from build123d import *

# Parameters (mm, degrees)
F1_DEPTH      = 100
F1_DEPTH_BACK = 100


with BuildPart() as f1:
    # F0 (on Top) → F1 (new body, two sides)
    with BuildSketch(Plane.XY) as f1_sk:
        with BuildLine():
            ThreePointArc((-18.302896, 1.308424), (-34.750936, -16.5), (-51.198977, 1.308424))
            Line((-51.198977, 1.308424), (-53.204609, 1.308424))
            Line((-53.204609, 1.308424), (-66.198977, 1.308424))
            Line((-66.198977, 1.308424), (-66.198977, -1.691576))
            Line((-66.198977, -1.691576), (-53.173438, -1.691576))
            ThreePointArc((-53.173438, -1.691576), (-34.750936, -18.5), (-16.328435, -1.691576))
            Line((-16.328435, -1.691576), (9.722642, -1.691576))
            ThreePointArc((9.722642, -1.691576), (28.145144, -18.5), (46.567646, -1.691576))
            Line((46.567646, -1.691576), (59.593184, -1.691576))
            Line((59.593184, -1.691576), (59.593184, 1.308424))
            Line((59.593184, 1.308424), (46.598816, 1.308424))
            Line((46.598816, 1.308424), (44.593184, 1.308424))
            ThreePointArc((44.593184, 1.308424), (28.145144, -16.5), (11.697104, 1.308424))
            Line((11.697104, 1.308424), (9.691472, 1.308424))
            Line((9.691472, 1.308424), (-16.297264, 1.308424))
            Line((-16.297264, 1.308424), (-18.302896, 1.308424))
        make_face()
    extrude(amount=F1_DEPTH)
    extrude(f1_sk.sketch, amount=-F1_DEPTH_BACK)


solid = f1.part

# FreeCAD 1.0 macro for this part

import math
import FreeCAD as App
import Part
import Sketcher

V = App.Vector

doc = App.newDocument("Part")
body = doc.addObject("PartDesign::Body", "Body")

# Sketch on XY plane
sketch1 = body.newObject("Sketcher::SketchObject", "Sketch")
sketch1.AttachmentSupport = (doc.getObject("XY_Plane"), [""])
sketch1.MapMode = "FlatFace"
sketch1.addGeometry([
    Part.ArcOfCircle(Part.Circle(V(-34.8, 0, 0), V(0, 0, 1), 16.5), math.radians(175), math.radians(365)),  # 0
    Part.LineSegment(V(-51.2, 1.3, 0), V(-66.2, 1.3, 0)),  # 1
    Part.LineSegment(V(-66.2, 1.3, 0), V(-66.2, -1.7, 0)),  # 2
    Part.LineSegment(V(-66.2, -1.7, 0), V(-53.2, -1.7, 0)),  # 3
    Part.ArcOfCircle(Part.Circle(V(-34.8, 0, 0), V(0, 0, 1), 18.5), math.radians(-175), math.radians(-5)),  # 4
    Part.LineSegment(V(-16.3, -1.7, 0), V(9.7, -1.7, 0)),  # 5
    Part.ArcOfCircle(Part.Circle(V(28.1, 0, 0), V(0, 0, 1), 18.5), math.radians(-175), math.radians(-5)),  # 6
    Part.LineSegment(V(46.6, -1.7, 0), V(59.6, -1.7, 0)),  # 7
    Part.LineSegment(V(59.6, -1.7, 0), V(59.6, 1.3, 0)),  # 8
    Part.LineSegment(V(59.6, 1.3, 0), V(44.6, 1.3, 0)),  # 9
    Part.ArcOfCircle(Part.Circle(V(28.1, 0, 0), V(0, 0, 1), 16.5), math.radians(175), math.radians(365)),  # 10
    Part.LineSegment(V(11.7, 1.3, 0), V(-18.3, 1.3, 0)),  # 11
], False)
sketch1.addConstraint([
    Sketcher.Constraint("Coincident", 0, 1, 1, 1),
    Sketcher.Constraint("Coincident", 1, 2, 2, 1),
    Sketcher.Constraint("Coincident", 2, 2, 3, 1),
    Sketcher.Constraint("Coincident", 3, 2, 4, 1),
    Sketcher.Constraint("Coincident", 4, 2, 5, 1),
    Sketcher.Constraint("Coincident", 5, 2, 6, 1),
    Sketcher.Constraint("Coincident", 6, 2, 7, 1),
    Sketcher.Constraint("Coincident", 7, 2, 8, 1),
    Sketcher.Constraint("Coincident", 8, 2, 9, 1),
    Sketcher.Constraint("Coincident", 9, 2, 10, 2),
    Sketcher.Constraint("Coincident", 10, 1, 11, 1),
    Sketcher.Constraint("Coincident", 11, 2, 0, 2),
    Sketcher.Constraint("Horizontal", 1),
    Sketcher.Constraint("Vertical", 2),
    Sketcher.Constraint("Horizontal", 3),
    Sketcher.Constraint("Horizontal", 5),
    Sketcher.Constraint("Horizontal", 7),
    Sketcher.Constraint("Vertical", 8),
    Sketcher.Constraint("Horizontal", 9),
    Sketcher.Constraint("Horizontal", 11),
    Sketcher.Constraint("Coincident", 4, 3, 0, 3),
    Sketcher.Constraint("Coincident", 10, 3, 6, 3),
    Sketcher.Constraint("Equal", 4, 6),
    Sketcher.Constraint("Equal", 0, 10),
    Sketcher.Constraint("PointOnObject", 0, 3, -1),
    Sketcher.Constraint("PointOnObject", 6, 3, -1),
    Sketcher.Constraint("Horizontal", 3, 2, 4, 2),
    Sketcher.Constraint("Horizontal", 5, 2, 6, 2),
    Sketcher.Constraint("Horizontal", 1, 2, 8, 2),
    Sketcher.Constraint("Horizontal", 9, 2, 10, 1),
    Sketcher.Constraint("Equal", 3, 7),
    Sketcher.Constraint("Radius", 0, 16.5),
    Sketcher.Constraint("Radius", 4, 18.5),
    Sketcher.Constraint("DistanceX", 1, 2, 1, 1, 15.0),
    Sketcher.Constraint("DistanceX", 11, 2, 11, 1, 30.0),
    Sketcher.Constraint("DistanceY", 2, 2, 2, 1, 3.0),
    Sketcher.Constraint("DistanceX", 3, 1, 3, 2, 13.025539),
    Sketcher.Constraint("DistanceX", 0, 3, -1, 1, 34.750937),
])
pad1 = body.newObject("PartDesign::Pad", "Pad")
pad1.Profile = sketch1
pad1.Type = "TwoLengths"
pad1.Length = 100
pad1.Length2 = 100

doc.recompute()
